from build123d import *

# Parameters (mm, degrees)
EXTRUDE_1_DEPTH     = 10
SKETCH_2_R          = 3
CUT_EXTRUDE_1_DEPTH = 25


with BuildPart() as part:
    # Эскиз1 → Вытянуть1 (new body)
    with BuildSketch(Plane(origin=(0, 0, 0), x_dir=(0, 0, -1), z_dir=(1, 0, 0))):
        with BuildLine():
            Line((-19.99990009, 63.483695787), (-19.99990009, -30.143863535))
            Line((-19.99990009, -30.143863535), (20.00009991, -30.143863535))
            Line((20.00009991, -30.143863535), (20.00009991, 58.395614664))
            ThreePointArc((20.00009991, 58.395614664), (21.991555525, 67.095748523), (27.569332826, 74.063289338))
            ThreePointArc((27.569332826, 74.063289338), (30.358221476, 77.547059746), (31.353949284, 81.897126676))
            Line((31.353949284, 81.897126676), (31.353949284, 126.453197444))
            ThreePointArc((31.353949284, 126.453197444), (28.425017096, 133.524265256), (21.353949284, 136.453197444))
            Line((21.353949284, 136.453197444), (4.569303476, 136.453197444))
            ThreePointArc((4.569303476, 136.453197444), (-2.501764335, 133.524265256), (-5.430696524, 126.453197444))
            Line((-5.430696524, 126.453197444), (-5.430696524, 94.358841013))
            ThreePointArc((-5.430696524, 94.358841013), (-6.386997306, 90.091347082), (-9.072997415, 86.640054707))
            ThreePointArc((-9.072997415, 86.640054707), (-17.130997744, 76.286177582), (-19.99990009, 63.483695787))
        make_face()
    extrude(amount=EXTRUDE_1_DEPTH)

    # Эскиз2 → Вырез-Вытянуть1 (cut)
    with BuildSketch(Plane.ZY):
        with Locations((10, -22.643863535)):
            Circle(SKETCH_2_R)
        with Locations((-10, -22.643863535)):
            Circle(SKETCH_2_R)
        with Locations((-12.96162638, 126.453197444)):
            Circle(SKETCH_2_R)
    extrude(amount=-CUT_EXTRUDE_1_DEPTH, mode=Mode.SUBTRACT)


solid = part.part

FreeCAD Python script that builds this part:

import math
import FreeCAD as App
import Part
import Sketcher
from FreeCAD import Vector
Q = App.Units.Quantity

doc = App.newDocument("Part")
body = doc.addObject("PartDesign::Body", "Body")

# Sketch on YZ plane
sketch1 = body.newObject("Sketcher::SketchObject", "Sketch")
sketch1.AttachmentSupport = (doc.getObject("YZ_Plane"), [""])
sketch1.MapMode = "FlatFace"
sketch1.addGeometry([
    Part.LineSegment(Vector(63, 20, 0), Vector(-30, 20, 0)),  # 0
    Part.LineSegment(Vector(-30, 20, 0), Vector(-30, -20, 0)),  # 1
    Part.LineSegment(Vector(-30, -20, 0), Vector(58, -20, 0)),  # 2
    Part.ArcOfCircle(Part.Circle(Vector(58, -40, 0), Vector(0, 0, 1), 20), math.radians(38), math.radians(90)),  # 3
    Part.ArcOfCircle(Part.Circle(Vector(82, -21, 0), Vector(0, 0, 1), 10), math.radians(-142), math.radians(-90)),  # 4
    Part.LineSegment(Vector(82, -31, 0), Vector(126, -31, 0)),  # 5
    Part.ArcOfCircle(Part.Circle(Vector(126, -21, 0), Vector(0, 0, 1), 10), math.radians(-90), math.radians(0)),  # 6
    Part.LineSegment(Vector(136, -21, 0), Vector(136, -5, 0)),  # 7
    Part.ArcOfCircle(Part.Circle(Vector(126, -5, 0), Vector(0, 0, 1), 10), math.radians(0), math.radians(90)),  # 8
    Part.LineSegment(Vector(126, 5, 0), Vector(94, 5, 0)),  # 9
    Part.ArcOfCircle(Part.Circle(Vector(94, 15, 0), Vector(0, 0, 1), 10), math.radians(-141), math.radians(-90)),  # 10
    Part.ArcOfCircle(Part.Circle(Vector(63, -10, 0), Vector(0, 0, 1), 30), math.radians(39), math.radians(90)),  # 11
], False)
sketch1.addConstraint([
    Sketcher.Constraint("Coincident", 0, 2, 1, 1),
    Sketcher.Constraint("Coincident", 1, 2, 2, 1),
    Sketcher.Constraint("Tangent", 2, 2, 3, 2),
    Sketcher.Constraint("Tangent", 3, 1, 4, 1),
    Sketcher.Constraint("Tangent", 4, 2, 5, 1),
    Sketcher.Constraint("Tangent", 5, 2, 6, 1),
    Sketcher.Constraint("Tangent", 6, 2, 7, 1),
    Sketcher.Constraint("Tangent", 7, 2, 8, 1),
    Sketcher.Constraint("Tangent", 8, 2, 9, 1),
    Sketcher.Constraint("Tangent", 9, 2, 10, 2),
    Sketcher.Constraint("Tangent", 10, 1, 11, 1),
    Sketcher.Constraint("Tangent", 11, 2, 0, 1),
    Sketcher.Constraint("Horizontal", 0),
    Sketcher.Constraint("Vertical", 1),
    Sketcher.Constraint("Horizontal", 2),
    Sketcher.Constraint("Horizontal", 5),
    Sketcher.Constraint("Vertical", 7),
    Sketcher.Constraint("Horizontal", 9),
    Sketcher.Constraint("Equal", 4, 6),
    Sketcher.Constraint("Equal", 6, 8),
    Sketcher.Constraint("Equal", 8, 10),
    Sketcher.Constraint("Radius", 3, Q("20 mm")),
    Sketcher.Constraint("Radius", 4, Q("10 mm")),
    Sketcher.Constraint("Radius", 11, Q("30 mm")),
    Sketcher.Constraint("DistanceY", 1, 2, 1, 1, Q("40 mm")),
    Sketcher.Constraint("DistanceX", 0, 2, 0, 1, Q("93.627559 mm")),
    Sketcher.Constraint("DistanceX", 2, 1, 2, 2, Q("88.539478 mm")),
    Sketcher.Constraint("DistanceX", 5, 1, 5, 2, Q("44.556071 mm")),
    Sketcher.Constraint("DistanceY", 3, 3, -1, 1, Q("40.0001 mm")),
    Sketcher.Constraint("DistanceX", 11, 3, 8, 3, Q("62.969502 mm")),
    Sketcher.Constraint("DistanceY", 9, 2, 10, 1, Q("3.642301 mm")),
    Sketcher.Constraint("DistanceX", -1, 1, 10, 3, Q("94.358841 mm")),
])
pad1 = body.newObject("PartDesign::Pad", "Pad")
pad1.Profile = sketch1
pad1.Length = 10

# Sketch on YZ plane
sketch2 = body.newObject("Sketcher::SketchObject", "Sketch001")
sketch2.AttachmentSupport = (doc.getObject("YZ_Plane"), [""])
sketch2.MapMode = "FlatFace"
sketch2.addGeometry([
    Part.Circle(Vector(-22.6, 10, 0), Vector(0, 0, 1), 3),
    Part.Circle(Vector(-22.6, -10, 0), Vector(0, 0, 1), 3),
    Part.Circle(Vector(126.5, -13, 0), Vector(0, 0, 1), 3),
], False)
sketch2.addConstraint([
    Sketcher.Constraint("Equal", 0, 1),
    Sketcher.Constraint("Equal", 1, 2),
    Sketcher.Constraint("Symmetric", 0, 3, 1, 3, -1),
    Sketcher.Constraint("Diameter", 0, Q("6 mm")),
    Sketcher.Constraint("DistanceY", -1, 1, 0, 3, Q("10 mm")),
    Sketcher.Constraint("DistanceX", 1, 3, 2, 3, Q("149.097061 mm")),
    Sketcher.Constraint("DistanceX", 0, 3, -1, 1, Q("22.643864 mm")),
    Sketcher.Constraint("DistanceY", 2, 3, -1, 1, Q("12.961626 mm")),
])
pocket1 = body.newObject("PartDesign::Pocket", "Pocket")
pocket1.Profile = sketch2
pocket1.Length = 25
pocket1.Reversed = True

doc.recompute()
